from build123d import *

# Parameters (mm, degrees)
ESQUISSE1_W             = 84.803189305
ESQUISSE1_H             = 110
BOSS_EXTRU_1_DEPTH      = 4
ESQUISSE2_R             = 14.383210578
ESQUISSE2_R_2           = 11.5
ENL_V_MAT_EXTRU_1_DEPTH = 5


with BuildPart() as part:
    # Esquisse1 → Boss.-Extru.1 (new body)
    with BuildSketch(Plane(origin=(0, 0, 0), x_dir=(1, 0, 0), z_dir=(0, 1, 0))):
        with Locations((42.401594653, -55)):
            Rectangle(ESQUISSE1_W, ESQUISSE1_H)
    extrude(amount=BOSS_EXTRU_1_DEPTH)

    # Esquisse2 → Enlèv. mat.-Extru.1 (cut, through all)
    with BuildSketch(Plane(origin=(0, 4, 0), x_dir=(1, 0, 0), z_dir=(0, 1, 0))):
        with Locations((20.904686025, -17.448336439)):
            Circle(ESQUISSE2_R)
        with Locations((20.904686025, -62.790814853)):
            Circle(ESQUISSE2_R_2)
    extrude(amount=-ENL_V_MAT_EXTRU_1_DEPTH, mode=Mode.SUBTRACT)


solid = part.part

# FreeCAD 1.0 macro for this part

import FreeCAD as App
import Part
import Sketcher

V = App.Vector

doc = App.newDocument("Part")
body = doc.addObject("PartDesign::Body", "Body")

# Sketch on XZ plane
sketch1 = doc.addObject("Sketcher::SketchObject", "Sketch")
body.addObject(sketch1)
sketch1.AttachmentSupport = (doc.XZ_Plane, [""])
sketch1.MapMode = "FlatFace"
sketch1.addGeometry(Part.LineSegment(V(0, 0, 0), V(0, 110, 0)), False)
sketch1.addGeometry(Part.LineSegment(V(0, 110, 0), V(84.803189, 110, 0)), False)
sketch1.addGeometry(Part.LineSegment(V(84.803189, 110, 0), V(84.803189, 0, 0)), False)
sketch1.addGeometry(Part.LineSegment(V(84.803189, 0, 0), V(0, 0, 0)), False)
sketch1.addConstraint(Sketcher.Constraint("Coincident", 0, 2, 1, 1))
sketch1.addConstraint(Sketcher.Constraint("Coincident", 1, 2, 2, 1))
sketch1.addConstraint(Sketcher.Constraint("Coincident", 2, 2, 3, 1))
sketch1.addConstraint(Sketcher.Constraint("Coincident", 3, 2, 0, 1))
sketch1.addConstraint(Sketcher.Constraint("Vertical", 0))
sketch1.addConstraint(Sketcher.Constraint("Horizontal", 1))
sketch1.addConstraint(Sketcher.Constraint("Vertical", 2))
sketch1.addConstraint(Sketcher.Constraint("Horizontal", 3))
sketch1.addConstraint(Sketcher.Constraint("Coincident", 3, 2, -1, 1))
sketch1.addConstraint(Sketcher.Constraint("DistanceY", 0, 1, 0, 2, 110.0))
sketch1.addConstraint(Sketcher.Constraint("DistanceX", 1, 1, 1, 2, 84.803189))
pad1 = doc.addObject("PartDesign::Pad", "Pad")
body.addObject(pad1)
pad1.Profile = sketch1
pad1.Length = 4
pad1.Reversed = True

# Sketch on XZ plane
sketch2 = doc.addObject("Sketcher::SketchObject", "Sketch001")
body.addObject(sketch2)
sketch2.AttachmentSupport = (doc.XZ_Plane, [""])
sketch2.MapMode = "FlatFace"
sketch2.AttachmentOffset = App.Placement(V(0, 0, -4), App.Rotation())
sketch2.addGeometry(Part.Circle(V(20.904686, 17.448336, 0), V(0, 0, 1), 14.383211), False)
sketch2.addGeometry(Part.Circle(V(20.904686, 62.790815, 0), V(0, 0, 1), 11.5), False)
sketch2.addConstraint(Sketcher.Constraint("Vertical", 0, 3, 1, 3))
sketch2.addConstraint(Sketcher.Constraint("Diameter", 1, 23.0))
sketch2.addConstraint(Sketcher.Constraint("Diameter", 0, 28.766421))
sketch2.addConstraint(Sketcher.Constraint("DistanceY", 0, 3, 1, 3, 45.342478))
sketch2.addConstraint(Sketcher.Constraint("DistanceX", -1, 1, 0, 3, 20.904686))
sketch2.addConstraint(Sketcher.Constraint("DistanceY", -1, 1, 0, 3, 17.448336))
pocket1 = doc.addObject("PartDesign::Pocket", "Pocket")
body.addObject(pocket1)
pocket1.Profile = sketch2
pocket1.Type = "ThroughAll"
pocket1.Reversed = True

doc.recompute()
